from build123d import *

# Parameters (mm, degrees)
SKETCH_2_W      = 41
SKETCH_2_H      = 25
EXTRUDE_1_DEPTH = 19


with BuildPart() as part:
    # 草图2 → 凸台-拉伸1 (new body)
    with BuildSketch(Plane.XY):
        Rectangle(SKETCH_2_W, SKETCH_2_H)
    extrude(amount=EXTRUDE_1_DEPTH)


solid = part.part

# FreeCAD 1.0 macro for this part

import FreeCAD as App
import Part
import Sketcher
from FreeCAD import Vector
Q = App.Units.Quantity


def add_polygon(sketch, points):
    """Adds a closed chain of lines whose ends are joined by coincident constraints."""
    first, n = sketch.GeometryCount, len(points)
    for a, b in zip(points, points[1:] + points[:1]):
        sketch.addGeometry(Part.LineSegment(App.Vector(*a, 0), App.Vector(*b, 0)), False)
    for i in range(n):
        sketch.addConstraint(Sketcher.Constraint("Coincident", first + i, 2, first + (i + 1) % n, 1))

doc = App.newDocument("Part")
params = doc.addObject("Spreadsheet::Sheet", "Params")
for row, (alias, value) in enumerate([
    ("sketch1_width", "41 mm"),
    ("sketch1_height", "25 mm"),
    ("pad1_length", "19 mm"),
], start=1):
    params.set(f"A{row}", alias)
    params.set(f"B{row}", "=" + value)
    params.setAlias(f"B{row}", alias)

body = doc.addObject("PartDesign::Body", "Body")

# Sketch on XY plane
sketch1 = body.newObject("Sketcher::SketchObject", "Sketch")
sketch1.AttachmentSupport = (doc.getObject("XY_Plane"), [""])
sketch1.MapMode = "FlatFace"
add_polygon(sketch1, [(-20, 12), (-20, -12), (20, -12), (20, 12)])  # lines 0-3
sketch1.addConstraint(Sketcher.Constraint("Vertical", 0))
sketch1.addConstraint(Sketcher.Constraint("Horizontal", 1))
sketch1.addConstraint(Sketcher.Constraint("Vertical", 2))
sketch1.addConstraint(Sketcher.Constraint("Horizontal", 3))
sketch1.addConstraint(Sketcher.Constraint("Symmetric", 0, 2, 2, 2, -1, 1))
sketch1.addConstraint(Sketcher.Constraint("DistanceX", 1, 1, 1, 2, Q("41 mm")))
sketch1.addConstraint(Sketcher.Constraint("DistanceY", 0, 2, 0, 1, Q("25 mm")))
sketch1.setExpression("Constraints[9]", "Params.sketch1_width")
sketch1.setExpression("Constraints[10]", "Params.sketch1_height")
pad1 = body.newObject("PartDesign::Pad", "Pad")
pad1.Profile = sketch1
pad1.setExpression("Length", "Params.pad1_length")

doc.recompute()
